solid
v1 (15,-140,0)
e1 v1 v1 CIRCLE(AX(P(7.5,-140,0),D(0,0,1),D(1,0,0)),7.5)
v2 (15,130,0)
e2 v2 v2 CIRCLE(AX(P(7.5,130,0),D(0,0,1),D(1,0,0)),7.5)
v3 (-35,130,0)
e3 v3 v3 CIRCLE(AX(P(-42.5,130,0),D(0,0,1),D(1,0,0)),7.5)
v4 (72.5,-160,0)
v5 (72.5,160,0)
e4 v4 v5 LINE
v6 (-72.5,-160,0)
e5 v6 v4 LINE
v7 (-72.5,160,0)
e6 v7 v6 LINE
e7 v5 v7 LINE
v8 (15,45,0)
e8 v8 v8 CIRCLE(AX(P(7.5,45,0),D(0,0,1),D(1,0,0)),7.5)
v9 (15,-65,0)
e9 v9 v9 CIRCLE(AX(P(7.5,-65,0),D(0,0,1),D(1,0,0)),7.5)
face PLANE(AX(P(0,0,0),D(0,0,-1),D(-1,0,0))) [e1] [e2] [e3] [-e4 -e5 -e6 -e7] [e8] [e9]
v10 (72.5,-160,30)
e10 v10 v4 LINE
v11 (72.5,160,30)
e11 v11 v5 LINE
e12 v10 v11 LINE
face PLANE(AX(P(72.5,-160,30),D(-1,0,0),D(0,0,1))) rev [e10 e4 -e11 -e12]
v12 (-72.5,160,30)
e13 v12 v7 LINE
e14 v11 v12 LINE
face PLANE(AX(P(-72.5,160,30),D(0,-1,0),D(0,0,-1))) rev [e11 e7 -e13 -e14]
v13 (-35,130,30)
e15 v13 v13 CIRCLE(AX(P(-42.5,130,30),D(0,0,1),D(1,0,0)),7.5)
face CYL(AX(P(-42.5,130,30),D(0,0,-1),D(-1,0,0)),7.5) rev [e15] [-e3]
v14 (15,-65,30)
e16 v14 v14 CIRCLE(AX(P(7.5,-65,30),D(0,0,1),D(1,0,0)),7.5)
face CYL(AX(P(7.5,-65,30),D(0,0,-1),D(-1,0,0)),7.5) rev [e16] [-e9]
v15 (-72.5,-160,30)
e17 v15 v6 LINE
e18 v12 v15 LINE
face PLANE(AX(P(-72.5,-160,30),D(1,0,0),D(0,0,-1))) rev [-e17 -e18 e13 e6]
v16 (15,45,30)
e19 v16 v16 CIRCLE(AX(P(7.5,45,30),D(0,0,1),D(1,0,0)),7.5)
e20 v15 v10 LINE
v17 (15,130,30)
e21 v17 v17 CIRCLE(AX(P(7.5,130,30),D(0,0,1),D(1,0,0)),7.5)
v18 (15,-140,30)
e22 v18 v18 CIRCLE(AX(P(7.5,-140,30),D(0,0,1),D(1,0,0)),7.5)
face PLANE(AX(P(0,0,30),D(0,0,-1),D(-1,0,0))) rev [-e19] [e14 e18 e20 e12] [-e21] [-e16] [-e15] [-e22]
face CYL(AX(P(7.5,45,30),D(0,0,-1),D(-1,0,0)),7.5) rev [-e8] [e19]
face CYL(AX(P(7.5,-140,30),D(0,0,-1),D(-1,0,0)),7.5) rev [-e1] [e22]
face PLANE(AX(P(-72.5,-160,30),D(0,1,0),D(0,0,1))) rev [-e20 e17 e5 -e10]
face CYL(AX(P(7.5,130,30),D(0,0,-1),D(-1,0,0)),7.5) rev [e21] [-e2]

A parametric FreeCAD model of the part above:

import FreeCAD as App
import Part
import Sketcher
from FreeCAD import Vector
Q = App.Units.Quantity


def add_polygon(sketch, points):
    """Adds a closed chain of lines whose ends are joined by coincident constraints."""
    first, n = sketch.GeometryCount, len(points)
    for a, b in zip(points, points[1:] + points[:1]):
        sketch.addGeometry(Part.LineSegment(App.Vector(*a, 0), App.Vector(*b, 0)), False)
    for i in range(n):
        sketch.addConstraint(Sketcher.Constraint("Coincident", first + i, 2, first + (i + 1) % n, 1))

doc = App.newDocument("Part")
body = doc.addObject("PartDesign::Body", "Body")

# Sketch on XY plane
sketch1 = body.newObject("Sketcher::SketchObject", "Sketch")
sketch1.AttachmentSupport = (doc.getObject("XY_Plane"), [""])
sketch1.MapMode = "FlatFace"
add_polygon(sketch1, [(-72, 160), (-72, -160), (72, -160), (72, 160)])  # lines 0-3
sketch1.addGeometry(Part.Circle(Vector(8, -140, 0), Vector(0, 0, 1), 8), False)  # 4
sketch1.addGeometry(Part.Circle(Vector(8, -65, 0), Vector(0, 0, 1), 8), False)  # 5
sketch1.addGeometry(Part.Circle(Vector(-42, 130, 0), Vector(0, 0, 1), 8), False)  # 6
sketch1.addGeometry(Part.Circle(Vector(8, 45, 0), Vector(0, 0, 1), 8), False)  # 7
sketch1.addGeometry(Part.Circle(Vector(8, 130, 0), Vector(0, 0, 1), 8), False)  # 8
sketch1.addConstraint([
    Sketcher.Constraint("Vertical", 0),
    Sketcher.Constraint("Horizontal", 1),
    Sketcher.Constraint("Vertical", 2),
    Sketcher.Constraint("Horizontal", 3),
    Sketcher.Constraint("Equal", 4, 5),
    Sketcher.Constraint("Equal", 5, 6),
    Sketcher.Constraint("Equal", 6, 7),
    Sketcher.Constraint("Equal", 7, 8),
    Sketcher.Constraint("Symmetric", 0, 2, 2, 2, -1, 1),
    Sketcher.Constraint("Horizontal", 6, 3, 8, 3),
    Sketcher.Constraint("Vertical", 4, 3, 5, 3),
    Sketcher.Constraint("Vertical", 5, 3, 7, 3),
    Sketcher.Constraint("Vertical", 7, 3, 8, 3),
    Sketcher.Constraint("Diameter", 4, Q("15 mm")),
    Sketcher.Constraint("DistanceX", 1, 1, 1, 2, Q("145 mm")),
    Sketcher.Constraint("DistanceY", 0, 2, 0, 1, Q("320 mm")),
    Sketcher.Constraint("DistanceY", 4, 3, -1, 1, Q("140 mm")),
    Sketcher.Constraint("DistanceY", 5, 3, -1, 1, Q("65 mm")),
    Sketcher.Constraint("DistanceY", -1, 1, 6, 3, Q("130 mm")),
    Sketcher.Constraint("DistanceY", -1, 1, 7, 3, Q("45 mm")),
    Sketcher.Constraint("DistanceX", 6, 3, 5, 3, Q("50 mm")),
    Sketcher.Constraint("DistanceX", 0, 2, 4, 3, Q("80 mm")),
])
pad1 = body.newObject("PartDesign::Pad", "Pad")
pad1.Profile = sketch1
pad1.Length = 30

doc.recompute()
